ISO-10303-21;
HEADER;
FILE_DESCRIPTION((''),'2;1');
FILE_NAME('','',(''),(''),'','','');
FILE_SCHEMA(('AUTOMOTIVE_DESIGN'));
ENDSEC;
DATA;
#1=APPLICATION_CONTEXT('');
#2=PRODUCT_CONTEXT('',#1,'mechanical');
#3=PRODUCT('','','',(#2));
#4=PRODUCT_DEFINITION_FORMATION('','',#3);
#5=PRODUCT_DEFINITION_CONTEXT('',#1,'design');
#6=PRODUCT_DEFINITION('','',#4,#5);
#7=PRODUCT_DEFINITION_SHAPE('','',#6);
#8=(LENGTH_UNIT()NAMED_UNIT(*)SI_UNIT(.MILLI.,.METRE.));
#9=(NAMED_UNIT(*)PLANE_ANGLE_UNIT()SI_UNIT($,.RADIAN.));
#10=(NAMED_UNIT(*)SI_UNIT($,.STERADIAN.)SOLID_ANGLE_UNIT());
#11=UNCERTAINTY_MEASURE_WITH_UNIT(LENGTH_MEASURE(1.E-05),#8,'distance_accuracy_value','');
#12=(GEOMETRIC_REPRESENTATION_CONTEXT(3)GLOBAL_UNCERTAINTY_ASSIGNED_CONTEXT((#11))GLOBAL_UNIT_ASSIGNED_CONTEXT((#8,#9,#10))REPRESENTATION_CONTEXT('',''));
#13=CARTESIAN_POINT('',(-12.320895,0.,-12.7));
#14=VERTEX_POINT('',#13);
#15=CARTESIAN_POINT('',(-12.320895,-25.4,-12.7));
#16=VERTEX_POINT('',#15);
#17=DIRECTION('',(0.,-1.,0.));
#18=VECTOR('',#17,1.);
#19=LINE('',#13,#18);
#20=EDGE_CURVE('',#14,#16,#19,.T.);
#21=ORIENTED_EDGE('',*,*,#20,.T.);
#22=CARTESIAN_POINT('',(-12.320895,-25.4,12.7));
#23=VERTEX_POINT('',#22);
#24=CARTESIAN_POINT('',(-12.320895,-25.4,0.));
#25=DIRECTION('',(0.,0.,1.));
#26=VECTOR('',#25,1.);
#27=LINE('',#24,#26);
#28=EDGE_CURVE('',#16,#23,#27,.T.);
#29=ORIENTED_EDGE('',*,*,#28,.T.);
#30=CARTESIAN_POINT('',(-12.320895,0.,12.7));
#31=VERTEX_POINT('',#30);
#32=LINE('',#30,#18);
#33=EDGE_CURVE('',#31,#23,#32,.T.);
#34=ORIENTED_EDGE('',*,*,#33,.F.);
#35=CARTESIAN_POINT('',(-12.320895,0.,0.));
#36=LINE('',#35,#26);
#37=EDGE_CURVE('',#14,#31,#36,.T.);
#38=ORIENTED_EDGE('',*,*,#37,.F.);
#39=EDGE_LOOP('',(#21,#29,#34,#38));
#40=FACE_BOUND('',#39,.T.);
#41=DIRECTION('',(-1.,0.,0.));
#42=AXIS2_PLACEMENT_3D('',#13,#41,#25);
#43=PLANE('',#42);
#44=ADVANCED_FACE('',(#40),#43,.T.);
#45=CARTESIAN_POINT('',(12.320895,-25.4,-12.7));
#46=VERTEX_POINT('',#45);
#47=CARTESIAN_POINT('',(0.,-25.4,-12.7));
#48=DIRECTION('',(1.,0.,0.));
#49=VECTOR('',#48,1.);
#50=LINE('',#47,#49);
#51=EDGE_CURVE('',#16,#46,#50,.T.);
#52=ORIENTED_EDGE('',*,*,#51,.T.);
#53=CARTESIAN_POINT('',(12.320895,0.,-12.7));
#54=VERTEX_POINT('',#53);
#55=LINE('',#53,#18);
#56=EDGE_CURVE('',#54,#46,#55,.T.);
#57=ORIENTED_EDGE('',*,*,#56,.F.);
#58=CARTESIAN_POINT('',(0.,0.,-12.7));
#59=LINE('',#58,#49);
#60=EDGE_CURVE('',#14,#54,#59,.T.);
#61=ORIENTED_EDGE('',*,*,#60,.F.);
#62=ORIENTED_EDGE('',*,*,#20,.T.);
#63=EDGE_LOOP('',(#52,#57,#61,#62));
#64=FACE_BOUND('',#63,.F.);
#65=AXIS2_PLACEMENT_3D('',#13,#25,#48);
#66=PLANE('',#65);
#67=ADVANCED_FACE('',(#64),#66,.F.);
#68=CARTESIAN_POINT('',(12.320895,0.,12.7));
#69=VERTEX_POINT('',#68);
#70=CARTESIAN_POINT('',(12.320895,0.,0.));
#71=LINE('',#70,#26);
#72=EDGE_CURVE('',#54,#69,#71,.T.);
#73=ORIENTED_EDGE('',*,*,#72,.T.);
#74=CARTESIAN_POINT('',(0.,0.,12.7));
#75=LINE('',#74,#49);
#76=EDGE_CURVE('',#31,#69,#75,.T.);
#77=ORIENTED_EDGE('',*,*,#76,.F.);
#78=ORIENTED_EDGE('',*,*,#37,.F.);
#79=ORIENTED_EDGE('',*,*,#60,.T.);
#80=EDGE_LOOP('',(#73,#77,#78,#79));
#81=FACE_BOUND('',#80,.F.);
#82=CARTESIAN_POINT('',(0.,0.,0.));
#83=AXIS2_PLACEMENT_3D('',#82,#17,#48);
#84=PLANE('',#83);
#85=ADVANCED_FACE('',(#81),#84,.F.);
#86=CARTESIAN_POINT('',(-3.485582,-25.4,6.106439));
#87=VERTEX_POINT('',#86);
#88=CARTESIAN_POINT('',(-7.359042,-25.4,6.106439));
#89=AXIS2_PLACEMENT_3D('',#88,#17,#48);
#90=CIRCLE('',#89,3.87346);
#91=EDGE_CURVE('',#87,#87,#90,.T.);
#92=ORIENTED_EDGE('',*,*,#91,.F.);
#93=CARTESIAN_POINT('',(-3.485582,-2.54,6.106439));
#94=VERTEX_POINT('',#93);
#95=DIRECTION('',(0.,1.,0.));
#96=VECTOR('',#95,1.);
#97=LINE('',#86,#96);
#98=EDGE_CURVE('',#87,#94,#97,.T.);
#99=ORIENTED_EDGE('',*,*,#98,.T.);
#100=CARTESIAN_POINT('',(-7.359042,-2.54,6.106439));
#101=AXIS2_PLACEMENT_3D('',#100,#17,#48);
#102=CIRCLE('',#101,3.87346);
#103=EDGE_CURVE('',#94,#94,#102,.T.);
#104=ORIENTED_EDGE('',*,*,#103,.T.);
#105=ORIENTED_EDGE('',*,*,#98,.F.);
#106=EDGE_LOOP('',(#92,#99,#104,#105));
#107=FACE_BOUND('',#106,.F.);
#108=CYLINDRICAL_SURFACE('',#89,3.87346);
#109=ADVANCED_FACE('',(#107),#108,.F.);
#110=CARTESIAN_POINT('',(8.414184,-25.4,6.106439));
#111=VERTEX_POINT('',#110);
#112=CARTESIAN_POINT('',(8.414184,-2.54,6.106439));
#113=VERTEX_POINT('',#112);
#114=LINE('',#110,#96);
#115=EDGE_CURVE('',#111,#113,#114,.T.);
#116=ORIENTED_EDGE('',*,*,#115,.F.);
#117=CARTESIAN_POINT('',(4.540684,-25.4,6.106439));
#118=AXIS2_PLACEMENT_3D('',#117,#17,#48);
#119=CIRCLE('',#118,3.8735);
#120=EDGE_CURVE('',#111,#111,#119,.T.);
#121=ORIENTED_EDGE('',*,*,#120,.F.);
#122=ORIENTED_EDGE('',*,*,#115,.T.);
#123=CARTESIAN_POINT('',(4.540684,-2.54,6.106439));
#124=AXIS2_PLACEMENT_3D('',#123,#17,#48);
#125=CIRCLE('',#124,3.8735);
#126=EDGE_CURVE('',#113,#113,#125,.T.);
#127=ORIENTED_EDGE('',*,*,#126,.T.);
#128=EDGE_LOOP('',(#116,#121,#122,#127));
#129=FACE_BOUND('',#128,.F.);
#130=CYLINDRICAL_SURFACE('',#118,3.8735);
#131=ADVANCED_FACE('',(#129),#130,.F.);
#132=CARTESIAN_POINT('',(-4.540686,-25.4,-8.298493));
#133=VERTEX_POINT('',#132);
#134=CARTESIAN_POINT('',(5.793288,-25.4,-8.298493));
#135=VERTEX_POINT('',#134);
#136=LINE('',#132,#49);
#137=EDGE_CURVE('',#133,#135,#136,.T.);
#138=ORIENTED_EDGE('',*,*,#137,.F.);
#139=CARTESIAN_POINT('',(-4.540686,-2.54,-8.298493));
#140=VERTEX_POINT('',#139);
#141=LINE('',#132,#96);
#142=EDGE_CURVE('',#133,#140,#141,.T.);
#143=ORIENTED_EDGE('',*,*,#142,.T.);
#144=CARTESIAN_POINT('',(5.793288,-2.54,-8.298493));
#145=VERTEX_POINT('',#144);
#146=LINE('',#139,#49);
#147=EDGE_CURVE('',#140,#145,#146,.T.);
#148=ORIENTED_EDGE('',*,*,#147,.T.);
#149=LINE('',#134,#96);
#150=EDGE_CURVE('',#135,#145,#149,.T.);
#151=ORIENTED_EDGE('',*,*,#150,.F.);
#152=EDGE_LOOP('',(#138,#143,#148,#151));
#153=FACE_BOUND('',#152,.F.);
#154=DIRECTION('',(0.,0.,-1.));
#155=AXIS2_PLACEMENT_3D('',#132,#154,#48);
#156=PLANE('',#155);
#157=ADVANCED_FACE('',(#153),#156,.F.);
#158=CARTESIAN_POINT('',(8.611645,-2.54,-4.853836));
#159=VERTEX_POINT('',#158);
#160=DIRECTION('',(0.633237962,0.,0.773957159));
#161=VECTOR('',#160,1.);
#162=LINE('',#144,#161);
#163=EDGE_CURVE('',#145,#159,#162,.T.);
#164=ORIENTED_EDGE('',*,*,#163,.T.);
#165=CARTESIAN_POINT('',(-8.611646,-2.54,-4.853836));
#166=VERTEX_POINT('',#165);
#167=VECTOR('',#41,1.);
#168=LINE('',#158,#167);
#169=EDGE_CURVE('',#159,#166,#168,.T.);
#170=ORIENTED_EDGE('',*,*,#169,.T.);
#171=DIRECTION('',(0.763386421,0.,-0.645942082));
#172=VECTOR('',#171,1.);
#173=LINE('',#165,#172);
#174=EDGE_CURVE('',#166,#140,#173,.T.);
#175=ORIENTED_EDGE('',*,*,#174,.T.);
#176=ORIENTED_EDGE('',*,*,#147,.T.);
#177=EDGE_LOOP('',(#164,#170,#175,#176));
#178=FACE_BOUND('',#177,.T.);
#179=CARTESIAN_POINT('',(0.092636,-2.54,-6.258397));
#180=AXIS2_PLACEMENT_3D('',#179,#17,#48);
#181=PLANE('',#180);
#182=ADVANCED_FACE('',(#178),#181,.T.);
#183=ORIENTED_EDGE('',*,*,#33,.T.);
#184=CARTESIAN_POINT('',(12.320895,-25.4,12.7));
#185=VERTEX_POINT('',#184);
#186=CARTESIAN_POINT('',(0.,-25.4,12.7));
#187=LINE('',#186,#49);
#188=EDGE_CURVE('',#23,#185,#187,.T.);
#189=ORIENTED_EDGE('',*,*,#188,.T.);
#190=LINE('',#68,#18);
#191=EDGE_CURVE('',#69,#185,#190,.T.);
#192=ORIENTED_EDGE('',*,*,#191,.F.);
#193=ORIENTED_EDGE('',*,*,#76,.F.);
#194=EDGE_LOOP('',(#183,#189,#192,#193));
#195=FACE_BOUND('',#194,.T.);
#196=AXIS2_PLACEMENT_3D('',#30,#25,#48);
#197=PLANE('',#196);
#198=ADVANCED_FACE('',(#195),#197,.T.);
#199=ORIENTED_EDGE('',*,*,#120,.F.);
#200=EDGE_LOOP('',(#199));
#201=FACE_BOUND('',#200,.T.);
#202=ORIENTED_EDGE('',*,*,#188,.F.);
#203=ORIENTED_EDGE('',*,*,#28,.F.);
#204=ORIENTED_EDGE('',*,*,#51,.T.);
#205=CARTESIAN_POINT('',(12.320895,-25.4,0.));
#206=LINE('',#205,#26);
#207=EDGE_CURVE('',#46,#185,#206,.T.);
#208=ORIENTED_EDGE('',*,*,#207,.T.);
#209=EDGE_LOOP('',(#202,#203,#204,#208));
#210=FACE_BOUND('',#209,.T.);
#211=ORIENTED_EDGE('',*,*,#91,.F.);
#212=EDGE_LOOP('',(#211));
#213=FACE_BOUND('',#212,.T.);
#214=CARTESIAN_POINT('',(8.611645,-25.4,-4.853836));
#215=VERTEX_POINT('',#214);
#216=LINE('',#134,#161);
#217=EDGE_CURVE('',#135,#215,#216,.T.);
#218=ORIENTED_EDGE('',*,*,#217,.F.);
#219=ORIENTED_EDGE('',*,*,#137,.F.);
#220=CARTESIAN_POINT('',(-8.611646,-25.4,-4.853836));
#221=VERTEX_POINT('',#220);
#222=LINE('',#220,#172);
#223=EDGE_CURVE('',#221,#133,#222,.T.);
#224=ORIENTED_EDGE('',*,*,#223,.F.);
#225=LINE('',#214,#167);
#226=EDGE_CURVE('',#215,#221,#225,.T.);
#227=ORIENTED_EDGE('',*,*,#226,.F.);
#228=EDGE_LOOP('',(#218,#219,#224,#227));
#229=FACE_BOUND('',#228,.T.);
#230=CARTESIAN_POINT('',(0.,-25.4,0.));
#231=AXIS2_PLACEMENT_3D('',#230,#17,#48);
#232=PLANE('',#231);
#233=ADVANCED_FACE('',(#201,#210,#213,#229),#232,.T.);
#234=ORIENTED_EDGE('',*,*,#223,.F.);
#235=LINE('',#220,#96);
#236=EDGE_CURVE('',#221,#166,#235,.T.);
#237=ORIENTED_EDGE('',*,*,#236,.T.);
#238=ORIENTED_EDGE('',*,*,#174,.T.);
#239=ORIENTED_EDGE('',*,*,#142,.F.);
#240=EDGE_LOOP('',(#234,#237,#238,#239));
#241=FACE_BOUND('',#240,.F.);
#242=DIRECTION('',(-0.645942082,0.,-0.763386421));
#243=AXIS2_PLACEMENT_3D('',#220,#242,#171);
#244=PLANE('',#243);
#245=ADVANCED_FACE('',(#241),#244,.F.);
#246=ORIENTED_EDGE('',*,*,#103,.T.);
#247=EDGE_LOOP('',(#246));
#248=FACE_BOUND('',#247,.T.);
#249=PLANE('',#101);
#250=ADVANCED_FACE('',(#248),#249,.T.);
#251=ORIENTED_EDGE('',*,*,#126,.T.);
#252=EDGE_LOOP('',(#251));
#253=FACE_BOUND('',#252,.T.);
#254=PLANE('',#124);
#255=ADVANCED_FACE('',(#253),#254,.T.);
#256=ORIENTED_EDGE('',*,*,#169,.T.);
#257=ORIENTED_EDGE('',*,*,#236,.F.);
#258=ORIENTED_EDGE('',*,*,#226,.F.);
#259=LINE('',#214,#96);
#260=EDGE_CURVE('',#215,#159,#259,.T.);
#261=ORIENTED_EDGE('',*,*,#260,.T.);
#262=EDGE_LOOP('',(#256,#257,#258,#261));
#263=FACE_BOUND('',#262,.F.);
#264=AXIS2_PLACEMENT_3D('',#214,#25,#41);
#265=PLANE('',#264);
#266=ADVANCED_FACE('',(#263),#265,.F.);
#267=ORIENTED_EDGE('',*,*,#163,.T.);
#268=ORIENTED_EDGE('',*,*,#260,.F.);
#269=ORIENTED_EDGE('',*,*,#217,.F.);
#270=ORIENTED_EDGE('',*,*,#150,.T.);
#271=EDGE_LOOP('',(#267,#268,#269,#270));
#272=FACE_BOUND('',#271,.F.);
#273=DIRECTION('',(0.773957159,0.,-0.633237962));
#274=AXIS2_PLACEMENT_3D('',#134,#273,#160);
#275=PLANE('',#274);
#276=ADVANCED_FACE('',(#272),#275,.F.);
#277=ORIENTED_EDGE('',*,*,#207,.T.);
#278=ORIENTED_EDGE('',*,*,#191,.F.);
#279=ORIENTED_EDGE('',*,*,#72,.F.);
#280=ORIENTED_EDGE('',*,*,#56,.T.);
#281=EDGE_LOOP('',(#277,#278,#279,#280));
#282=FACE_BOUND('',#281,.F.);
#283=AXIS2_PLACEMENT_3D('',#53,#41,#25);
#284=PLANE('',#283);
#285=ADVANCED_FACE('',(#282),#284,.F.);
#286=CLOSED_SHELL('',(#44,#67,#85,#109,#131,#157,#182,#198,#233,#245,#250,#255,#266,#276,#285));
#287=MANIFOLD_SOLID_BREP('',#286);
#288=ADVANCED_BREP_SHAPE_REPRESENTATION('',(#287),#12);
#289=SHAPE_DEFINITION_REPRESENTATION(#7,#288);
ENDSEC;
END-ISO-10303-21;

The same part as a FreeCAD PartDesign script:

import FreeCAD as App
import Part
import Sketcher
from FreeCAD import Vector
Q = App.Units.Quantity


def add_polygon(sketch, points):
    """Adds a closed chain of lines whose ends are joined by coincident constraints."""
    first, n = sketch.GeometryCount, len(points)
    for a, b in zip(points, points[1:] + points[:1]):
        sketch.addGeometry(Part.LineSegment(App.Vector(*a, 0), App.Vector(*b, 0)), False)
    for i in range(n):
        sketch.addConstraint(Sketcher.Constraint("Coincident", first + i, 2, first + (i + 1) % n, 1))

doc = App.newDocument("Part")
body = doc.addObject("PartDesign::Body", "Body")

# Sketch on XZ plane
sketch1 = body.newObject("Sketcher::SketchObject", "Sketch")
sketch1.AttachmentSupport = (doc.getObject("XZ_Plane"), [""])
sketch1.MapMode = "FlatFace"
add_polygon(sketch1, [(-12, 13), (-12, -13), (12, -13), (12, 13)])  # lines 0-3
sketch1.addConstraint([
    Sketcher.Constraint("Vertical", 0),
    Sketcher.Constraint("Horizontal", 1),
    Sketcher.Constraint("Vertical", 2),
    Sketcher.Constraint("Horizontal", 3),
    Sketcher.Constraint("Symmetric", 0, 2, 2, 2, -1, 1),
    Sketcher.Constraint("DistanceY", 0, 2, 0, 1, Q("1 in")),
    Sketcher.Constraint("DistanceX", 1, 1, 1, 2, Q("24.64179 mm")),
])
pad1 = body.newObject("PartDesign::Pad", "Pad")
pad1.Profile = sketch1
pad1.Length = Q("1 in")

# Sketch on XZ plane
sketch2 = body.newObject("Sketcher::SketchObject", "Sketch001")
sketch2.AttachmentSupport = (doc.getObject("XZ_Plane"), [""])
sketch2.MapMode = "FlatFace"
sketch2.AttachmentOffset = App.Placement(Vector(0, 0, 1 * 25.4), App.Rotation())
add_polygon(sketch2, [(8.6, -4.9), (-8.6, -4.9), (-4.5, -8.3), (5.8, -8.3)])  # lines 0-3
sketch2.addGeometry(Part.Circle(Vector(4.5, 6.1, 0), Vector(0, 0, 1), 3.9), False)  # 4
sketch2.addGeometry(Part.Circle(Vector(-7.4, 6.1, 0), Vector(0, 0, 1), 3.9), False)  # 5
sketch2.addConstraint([
    Sketcher.Constraint("Horizontal", 0),
    Sketcher.Constraint("Horizontal", 2),
    Sketcher.Constraint("Horizontal", 4, 3, 5, 3),
    Sketcher.Constraint("Diameter", 4, Q("0.305 in")),
    Sketcher.Constraint("Diameter", 5, Q("7.74692 mm")),
    Sketcher.Constraint("DistanceX", 0, 2, 0, 1, Q("17.223291 mm")),
    Sketcher.Constraint("DistanceX", 2, 1, 2, 2, Q("10.333974 mm")),
    Sketcher.Constraint("DistanceY", -1, 1, 4, 3, Q("6.106439 mm")),
    Sketcher.Constraint("DistanceX", 5, 3, -1, 1, Q("7.359042 mm")),
    Sketcher.Constraint("DistanceX", -1, 1, 2, 2, Q("5.793288 mm")),
    Sketcher.Constraint("DistanceX", 0, 2, 4, 3, Q("13.15233 mm")),
    Sketcher.Constraint("DistanceX", 0, 2, 1, 2, Q("4.07096 mm")),
    Sketcher.Constraint("Distance", 1, Q("5.332764 mm")),
    Sketcher.Constraint("DistanceY", 0, 2, -1, 1, Q("4.853836 mm")),
])
pocket1 = body.newObject("PartDesign::Pocket", "Pocket")
pocket1.Profile = sketch2
pocket1.Length = Q("0.9 in")

doc.recompute()
